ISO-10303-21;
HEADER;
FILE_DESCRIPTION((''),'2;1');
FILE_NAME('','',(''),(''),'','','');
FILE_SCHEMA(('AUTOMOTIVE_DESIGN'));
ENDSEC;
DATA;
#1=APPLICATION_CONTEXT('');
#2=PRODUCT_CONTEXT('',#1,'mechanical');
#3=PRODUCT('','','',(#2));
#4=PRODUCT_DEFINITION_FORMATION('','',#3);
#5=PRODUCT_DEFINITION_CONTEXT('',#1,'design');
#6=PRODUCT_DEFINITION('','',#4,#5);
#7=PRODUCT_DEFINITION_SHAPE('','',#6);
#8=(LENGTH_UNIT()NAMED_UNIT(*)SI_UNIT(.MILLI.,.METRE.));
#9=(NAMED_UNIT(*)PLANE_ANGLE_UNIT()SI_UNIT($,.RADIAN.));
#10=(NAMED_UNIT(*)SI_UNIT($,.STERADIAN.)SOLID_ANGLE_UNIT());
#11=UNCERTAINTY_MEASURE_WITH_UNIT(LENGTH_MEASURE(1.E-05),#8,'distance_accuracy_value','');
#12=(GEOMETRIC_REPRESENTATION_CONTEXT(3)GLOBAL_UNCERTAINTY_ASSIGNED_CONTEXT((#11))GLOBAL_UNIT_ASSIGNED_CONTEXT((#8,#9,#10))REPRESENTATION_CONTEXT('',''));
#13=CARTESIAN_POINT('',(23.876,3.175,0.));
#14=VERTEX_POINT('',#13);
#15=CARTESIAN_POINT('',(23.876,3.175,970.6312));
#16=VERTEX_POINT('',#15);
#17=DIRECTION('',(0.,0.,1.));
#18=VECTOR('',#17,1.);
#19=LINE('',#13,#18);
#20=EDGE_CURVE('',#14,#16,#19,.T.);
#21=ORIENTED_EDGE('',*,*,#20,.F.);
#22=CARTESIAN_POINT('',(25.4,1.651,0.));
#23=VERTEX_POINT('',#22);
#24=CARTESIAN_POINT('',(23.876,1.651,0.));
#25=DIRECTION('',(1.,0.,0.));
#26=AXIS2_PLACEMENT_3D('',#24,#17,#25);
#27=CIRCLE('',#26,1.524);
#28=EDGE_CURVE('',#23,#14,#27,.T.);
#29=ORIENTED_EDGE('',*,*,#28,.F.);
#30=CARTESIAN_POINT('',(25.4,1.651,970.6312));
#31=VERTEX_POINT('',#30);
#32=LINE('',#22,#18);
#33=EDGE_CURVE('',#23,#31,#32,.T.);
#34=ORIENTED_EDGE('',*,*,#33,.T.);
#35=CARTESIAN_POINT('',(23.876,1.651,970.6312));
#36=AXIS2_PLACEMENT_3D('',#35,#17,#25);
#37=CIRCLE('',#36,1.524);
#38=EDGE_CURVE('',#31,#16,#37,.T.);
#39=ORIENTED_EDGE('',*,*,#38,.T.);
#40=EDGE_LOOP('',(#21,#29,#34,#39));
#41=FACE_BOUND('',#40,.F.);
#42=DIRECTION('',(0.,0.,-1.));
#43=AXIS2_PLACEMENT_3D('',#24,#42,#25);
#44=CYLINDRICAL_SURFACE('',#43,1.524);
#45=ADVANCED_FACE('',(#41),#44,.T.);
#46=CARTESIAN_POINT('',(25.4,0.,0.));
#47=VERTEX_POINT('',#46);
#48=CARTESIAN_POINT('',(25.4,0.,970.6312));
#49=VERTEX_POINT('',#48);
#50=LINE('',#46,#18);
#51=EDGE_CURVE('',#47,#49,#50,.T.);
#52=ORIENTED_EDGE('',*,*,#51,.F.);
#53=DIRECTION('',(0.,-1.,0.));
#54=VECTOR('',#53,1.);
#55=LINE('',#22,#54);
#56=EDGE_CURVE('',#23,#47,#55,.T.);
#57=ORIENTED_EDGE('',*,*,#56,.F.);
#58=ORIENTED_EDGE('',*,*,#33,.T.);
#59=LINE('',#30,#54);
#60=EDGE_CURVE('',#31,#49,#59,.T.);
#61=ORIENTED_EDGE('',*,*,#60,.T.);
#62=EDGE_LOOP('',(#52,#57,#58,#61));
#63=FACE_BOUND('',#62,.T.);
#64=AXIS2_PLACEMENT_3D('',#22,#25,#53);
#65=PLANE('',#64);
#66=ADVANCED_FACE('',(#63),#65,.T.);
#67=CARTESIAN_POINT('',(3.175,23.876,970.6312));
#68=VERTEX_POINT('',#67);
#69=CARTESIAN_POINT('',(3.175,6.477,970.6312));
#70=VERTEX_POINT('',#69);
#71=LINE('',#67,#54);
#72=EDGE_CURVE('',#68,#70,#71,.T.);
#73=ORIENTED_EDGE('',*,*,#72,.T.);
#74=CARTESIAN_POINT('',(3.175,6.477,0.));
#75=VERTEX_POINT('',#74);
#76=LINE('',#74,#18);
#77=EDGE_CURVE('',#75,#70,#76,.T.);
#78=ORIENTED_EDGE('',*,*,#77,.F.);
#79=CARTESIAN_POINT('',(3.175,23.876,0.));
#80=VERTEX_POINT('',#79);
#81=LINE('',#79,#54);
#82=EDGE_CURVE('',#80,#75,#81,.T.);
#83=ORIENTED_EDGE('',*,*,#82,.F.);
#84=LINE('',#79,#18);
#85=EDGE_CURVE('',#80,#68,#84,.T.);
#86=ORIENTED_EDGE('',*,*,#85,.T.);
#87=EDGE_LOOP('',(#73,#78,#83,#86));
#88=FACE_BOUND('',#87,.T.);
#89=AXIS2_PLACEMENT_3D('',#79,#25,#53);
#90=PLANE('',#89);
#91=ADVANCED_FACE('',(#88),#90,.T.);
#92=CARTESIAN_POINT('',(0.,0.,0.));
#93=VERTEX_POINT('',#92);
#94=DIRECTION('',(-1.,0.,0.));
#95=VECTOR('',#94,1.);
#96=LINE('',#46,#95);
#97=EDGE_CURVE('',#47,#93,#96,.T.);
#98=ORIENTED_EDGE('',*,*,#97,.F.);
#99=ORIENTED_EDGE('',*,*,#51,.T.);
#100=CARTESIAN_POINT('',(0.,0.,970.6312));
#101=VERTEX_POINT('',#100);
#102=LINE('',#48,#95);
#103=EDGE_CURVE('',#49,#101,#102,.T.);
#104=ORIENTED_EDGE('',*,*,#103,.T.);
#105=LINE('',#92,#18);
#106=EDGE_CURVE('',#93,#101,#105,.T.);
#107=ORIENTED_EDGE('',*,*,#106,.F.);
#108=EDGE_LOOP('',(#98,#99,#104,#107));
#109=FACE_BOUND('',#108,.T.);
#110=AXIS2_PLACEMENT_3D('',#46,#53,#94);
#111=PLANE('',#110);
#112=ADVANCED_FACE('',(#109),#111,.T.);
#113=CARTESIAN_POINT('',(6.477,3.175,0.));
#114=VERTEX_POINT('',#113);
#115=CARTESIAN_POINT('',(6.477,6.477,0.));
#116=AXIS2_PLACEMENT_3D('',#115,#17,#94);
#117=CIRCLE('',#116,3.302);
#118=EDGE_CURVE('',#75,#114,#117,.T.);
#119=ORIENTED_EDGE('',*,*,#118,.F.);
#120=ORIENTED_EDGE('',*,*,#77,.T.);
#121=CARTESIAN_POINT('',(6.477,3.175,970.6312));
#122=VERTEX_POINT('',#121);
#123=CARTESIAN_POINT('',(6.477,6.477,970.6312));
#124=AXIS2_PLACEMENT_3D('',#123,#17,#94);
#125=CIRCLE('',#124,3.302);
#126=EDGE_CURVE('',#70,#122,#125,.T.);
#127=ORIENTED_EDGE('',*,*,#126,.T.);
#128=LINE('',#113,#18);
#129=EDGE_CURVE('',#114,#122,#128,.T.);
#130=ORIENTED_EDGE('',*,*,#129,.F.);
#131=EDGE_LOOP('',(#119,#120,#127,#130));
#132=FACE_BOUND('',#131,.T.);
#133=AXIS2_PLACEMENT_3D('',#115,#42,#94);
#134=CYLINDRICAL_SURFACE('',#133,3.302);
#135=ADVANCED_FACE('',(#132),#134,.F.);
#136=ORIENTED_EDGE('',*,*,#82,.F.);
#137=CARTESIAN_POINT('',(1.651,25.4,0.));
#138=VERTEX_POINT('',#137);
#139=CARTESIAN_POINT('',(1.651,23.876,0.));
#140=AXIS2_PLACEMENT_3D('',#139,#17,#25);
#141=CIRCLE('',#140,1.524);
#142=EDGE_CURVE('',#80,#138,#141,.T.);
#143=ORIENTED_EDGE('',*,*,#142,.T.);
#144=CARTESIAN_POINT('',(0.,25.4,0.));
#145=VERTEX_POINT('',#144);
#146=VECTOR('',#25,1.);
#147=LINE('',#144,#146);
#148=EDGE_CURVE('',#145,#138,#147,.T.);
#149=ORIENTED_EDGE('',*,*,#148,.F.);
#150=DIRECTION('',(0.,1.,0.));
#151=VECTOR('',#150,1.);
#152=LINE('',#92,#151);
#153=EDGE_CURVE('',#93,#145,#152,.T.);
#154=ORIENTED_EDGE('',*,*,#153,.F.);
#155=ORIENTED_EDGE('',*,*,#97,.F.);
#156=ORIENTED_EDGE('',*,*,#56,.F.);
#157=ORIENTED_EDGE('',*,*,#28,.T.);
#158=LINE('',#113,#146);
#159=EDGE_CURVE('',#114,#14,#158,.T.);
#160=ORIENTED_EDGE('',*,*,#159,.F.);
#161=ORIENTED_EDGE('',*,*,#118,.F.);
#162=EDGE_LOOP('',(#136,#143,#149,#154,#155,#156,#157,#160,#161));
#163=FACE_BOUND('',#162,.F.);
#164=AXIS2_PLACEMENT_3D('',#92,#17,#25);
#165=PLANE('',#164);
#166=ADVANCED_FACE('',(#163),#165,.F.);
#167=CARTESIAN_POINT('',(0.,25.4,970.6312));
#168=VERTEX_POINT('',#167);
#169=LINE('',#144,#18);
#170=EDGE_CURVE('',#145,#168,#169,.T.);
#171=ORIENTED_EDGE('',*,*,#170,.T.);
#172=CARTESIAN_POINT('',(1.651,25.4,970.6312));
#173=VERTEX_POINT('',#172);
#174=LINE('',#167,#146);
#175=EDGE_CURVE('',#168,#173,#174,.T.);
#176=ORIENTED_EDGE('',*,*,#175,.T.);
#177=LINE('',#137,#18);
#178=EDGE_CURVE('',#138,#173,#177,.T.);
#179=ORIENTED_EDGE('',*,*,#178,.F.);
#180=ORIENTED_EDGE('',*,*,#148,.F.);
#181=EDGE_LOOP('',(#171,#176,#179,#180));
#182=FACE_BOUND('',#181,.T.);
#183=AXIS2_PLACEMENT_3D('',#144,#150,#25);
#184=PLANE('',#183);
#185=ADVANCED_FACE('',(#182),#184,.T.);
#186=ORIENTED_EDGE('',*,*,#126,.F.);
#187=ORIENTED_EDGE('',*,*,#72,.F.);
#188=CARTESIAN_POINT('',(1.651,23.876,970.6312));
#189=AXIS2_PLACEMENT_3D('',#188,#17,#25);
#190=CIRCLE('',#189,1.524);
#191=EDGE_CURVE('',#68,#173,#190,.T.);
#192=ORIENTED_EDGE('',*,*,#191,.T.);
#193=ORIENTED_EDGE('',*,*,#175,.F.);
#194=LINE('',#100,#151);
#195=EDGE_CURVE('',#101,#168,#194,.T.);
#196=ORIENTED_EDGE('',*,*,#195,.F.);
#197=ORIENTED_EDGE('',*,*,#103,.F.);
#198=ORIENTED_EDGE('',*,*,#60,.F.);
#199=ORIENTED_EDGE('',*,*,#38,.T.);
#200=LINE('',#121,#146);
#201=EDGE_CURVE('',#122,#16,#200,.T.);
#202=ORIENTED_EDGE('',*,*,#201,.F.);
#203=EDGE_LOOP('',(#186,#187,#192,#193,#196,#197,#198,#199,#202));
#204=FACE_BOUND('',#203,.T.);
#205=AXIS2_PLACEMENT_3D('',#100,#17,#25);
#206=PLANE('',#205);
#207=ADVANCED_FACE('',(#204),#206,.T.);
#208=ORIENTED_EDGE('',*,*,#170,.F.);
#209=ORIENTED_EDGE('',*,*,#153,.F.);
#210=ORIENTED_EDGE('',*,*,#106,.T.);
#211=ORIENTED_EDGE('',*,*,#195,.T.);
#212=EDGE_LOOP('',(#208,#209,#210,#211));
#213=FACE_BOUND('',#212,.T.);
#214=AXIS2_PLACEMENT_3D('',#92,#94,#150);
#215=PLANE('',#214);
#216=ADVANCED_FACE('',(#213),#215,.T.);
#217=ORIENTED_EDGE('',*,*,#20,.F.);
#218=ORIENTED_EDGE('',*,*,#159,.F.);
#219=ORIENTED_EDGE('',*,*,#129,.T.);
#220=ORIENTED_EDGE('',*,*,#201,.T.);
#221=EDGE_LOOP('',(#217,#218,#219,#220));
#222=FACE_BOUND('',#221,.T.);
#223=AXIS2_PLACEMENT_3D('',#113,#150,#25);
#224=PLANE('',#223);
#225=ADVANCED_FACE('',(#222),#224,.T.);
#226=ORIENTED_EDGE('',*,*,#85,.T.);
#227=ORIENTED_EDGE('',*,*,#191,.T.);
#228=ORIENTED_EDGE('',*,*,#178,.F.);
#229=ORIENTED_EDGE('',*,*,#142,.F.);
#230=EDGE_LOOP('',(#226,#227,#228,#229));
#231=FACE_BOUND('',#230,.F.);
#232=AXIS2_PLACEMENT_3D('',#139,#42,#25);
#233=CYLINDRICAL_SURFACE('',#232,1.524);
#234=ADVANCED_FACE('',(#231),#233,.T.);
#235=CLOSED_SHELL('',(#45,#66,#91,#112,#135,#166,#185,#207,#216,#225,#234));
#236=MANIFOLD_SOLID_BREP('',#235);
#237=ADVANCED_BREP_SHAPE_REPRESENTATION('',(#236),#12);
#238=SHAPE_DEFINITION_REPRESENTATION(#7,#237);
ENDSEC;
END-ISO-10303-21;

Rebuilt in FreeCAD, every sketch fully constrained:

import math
import FreeCAD as App
import Part
import Sketcher
Q = App.Units.Quantity

doc = App.newDocument("Part")
body = doc.addObject("PartDesign::Body", "Body")

sketch1 = body.newObject("Sketcher::SketchObject", "Sketch")
sketch1.AttachmentSupport = (doc.getObject("XY_Plane"), [""])
sketch1.MapMode = "FlatFace"
sketch1.addGeometry([
    Part.LineSegment(App.Vector(0, 0, 0), App.Vector(25.4, 0, 0)),
    Part.LineSegment(App.Vector(25.4, 0, 0), App.Vector(25.4, 1.651, 0)),
    Part.ArcOfCircle(Part.Circle(App.Vector(23.876, 1.651, 0), App.Vector(0, 0, 1), 1.524), math.radians(0), math.radians(90)),
    Part.LineSegment(App.Vector(23.876, 3.175, 0), App.Vector(6.477, 3.175, 0)),
    Part.ArcOfCircle(Part.Circle(App.Vector(6.477, 6.477, 0), App.Vector(0, 0, 1), 3.302), math.radians(180), math.radians(270)),
    Part.LineSegment(App.Vector(3.175, 6.477, 0), App.Vector(3.175, 23.876, 0)),
    Part.ArcOfCircle(Part.Circle(App.Vector(1.651, 23.876, 0), App.Vector(0, 0, 1), 1.524), math.radians(0), math.radians(90)),
    Part.LineSegment(App.Vector(1.651, 25.4, 0), App.Vector(0, 25.4, 0)),
    Part.LineSegment(App.Vector(0, 25.4, 0), App.Vector(0, 0, 0)),
], False)
sketch1.addConstraint([
    Sketcher.Constraint("Coincident", 0, 2, 1, 1),
    Sketcher.Constraint("Tangent", 1, 2, 2, 1),
    Sketcher.Constraint("Tangent", 2, 2, 3, 1),
    Sketcher.Constraint("Tangent", 3, 2, 4, 2),
    Sketcher.Constraint("Tangent", 4, 1, 5, 1),
    Sketcher.Constraint("Tangent", 5, 2, 6, 1),
    Sketcher.Constraint("Tangent", 6, 2, 7, 1),
    Sketcher.Constraint("Coincident", 7, 2, 8, 1),
    Sketcher.Constraint("Coincident", 8, 2, 0, 1),
    Sketcher.Constraint("Horizontal", 0),
    Sketcher.Constraint("Vertical", 1),
    Sketcher.Constraint("Horizontal", 3),
    Sketcher.Constraint("Vertical", 5),
    Sketcher.Constraint("Horizontal", 7),
    Sketcher.Constraint("Vertical", 8),
    Sketcher.Constraint("Coincident", 8, 2, -1, 1),
    Sketcher.Constraint("Equal", 2, 6),
    Sketcher.Constraint("Equal", 7, 1),
    Sketcher.Constraint("Equal", 3, 5),
    Sketcher.Constraint("DistanceX", 0, 1, 0, 2, Q("1 in")),
    Sketcher.Constraint("Radius", 2, Q("0.06 in")),
    Sketcher.Constraint("Radius", 4, Q("0.13 in")),
    Sketcher.Constraint("DistanceY", -1, 1, 2, 2, Q("0.125 in")),
])
pad1 = body.newObject("PartDesign::Pad", "Pad")
pad1.Profile = sketch1
pad1.Length = 970.6312

doc.recompute()
